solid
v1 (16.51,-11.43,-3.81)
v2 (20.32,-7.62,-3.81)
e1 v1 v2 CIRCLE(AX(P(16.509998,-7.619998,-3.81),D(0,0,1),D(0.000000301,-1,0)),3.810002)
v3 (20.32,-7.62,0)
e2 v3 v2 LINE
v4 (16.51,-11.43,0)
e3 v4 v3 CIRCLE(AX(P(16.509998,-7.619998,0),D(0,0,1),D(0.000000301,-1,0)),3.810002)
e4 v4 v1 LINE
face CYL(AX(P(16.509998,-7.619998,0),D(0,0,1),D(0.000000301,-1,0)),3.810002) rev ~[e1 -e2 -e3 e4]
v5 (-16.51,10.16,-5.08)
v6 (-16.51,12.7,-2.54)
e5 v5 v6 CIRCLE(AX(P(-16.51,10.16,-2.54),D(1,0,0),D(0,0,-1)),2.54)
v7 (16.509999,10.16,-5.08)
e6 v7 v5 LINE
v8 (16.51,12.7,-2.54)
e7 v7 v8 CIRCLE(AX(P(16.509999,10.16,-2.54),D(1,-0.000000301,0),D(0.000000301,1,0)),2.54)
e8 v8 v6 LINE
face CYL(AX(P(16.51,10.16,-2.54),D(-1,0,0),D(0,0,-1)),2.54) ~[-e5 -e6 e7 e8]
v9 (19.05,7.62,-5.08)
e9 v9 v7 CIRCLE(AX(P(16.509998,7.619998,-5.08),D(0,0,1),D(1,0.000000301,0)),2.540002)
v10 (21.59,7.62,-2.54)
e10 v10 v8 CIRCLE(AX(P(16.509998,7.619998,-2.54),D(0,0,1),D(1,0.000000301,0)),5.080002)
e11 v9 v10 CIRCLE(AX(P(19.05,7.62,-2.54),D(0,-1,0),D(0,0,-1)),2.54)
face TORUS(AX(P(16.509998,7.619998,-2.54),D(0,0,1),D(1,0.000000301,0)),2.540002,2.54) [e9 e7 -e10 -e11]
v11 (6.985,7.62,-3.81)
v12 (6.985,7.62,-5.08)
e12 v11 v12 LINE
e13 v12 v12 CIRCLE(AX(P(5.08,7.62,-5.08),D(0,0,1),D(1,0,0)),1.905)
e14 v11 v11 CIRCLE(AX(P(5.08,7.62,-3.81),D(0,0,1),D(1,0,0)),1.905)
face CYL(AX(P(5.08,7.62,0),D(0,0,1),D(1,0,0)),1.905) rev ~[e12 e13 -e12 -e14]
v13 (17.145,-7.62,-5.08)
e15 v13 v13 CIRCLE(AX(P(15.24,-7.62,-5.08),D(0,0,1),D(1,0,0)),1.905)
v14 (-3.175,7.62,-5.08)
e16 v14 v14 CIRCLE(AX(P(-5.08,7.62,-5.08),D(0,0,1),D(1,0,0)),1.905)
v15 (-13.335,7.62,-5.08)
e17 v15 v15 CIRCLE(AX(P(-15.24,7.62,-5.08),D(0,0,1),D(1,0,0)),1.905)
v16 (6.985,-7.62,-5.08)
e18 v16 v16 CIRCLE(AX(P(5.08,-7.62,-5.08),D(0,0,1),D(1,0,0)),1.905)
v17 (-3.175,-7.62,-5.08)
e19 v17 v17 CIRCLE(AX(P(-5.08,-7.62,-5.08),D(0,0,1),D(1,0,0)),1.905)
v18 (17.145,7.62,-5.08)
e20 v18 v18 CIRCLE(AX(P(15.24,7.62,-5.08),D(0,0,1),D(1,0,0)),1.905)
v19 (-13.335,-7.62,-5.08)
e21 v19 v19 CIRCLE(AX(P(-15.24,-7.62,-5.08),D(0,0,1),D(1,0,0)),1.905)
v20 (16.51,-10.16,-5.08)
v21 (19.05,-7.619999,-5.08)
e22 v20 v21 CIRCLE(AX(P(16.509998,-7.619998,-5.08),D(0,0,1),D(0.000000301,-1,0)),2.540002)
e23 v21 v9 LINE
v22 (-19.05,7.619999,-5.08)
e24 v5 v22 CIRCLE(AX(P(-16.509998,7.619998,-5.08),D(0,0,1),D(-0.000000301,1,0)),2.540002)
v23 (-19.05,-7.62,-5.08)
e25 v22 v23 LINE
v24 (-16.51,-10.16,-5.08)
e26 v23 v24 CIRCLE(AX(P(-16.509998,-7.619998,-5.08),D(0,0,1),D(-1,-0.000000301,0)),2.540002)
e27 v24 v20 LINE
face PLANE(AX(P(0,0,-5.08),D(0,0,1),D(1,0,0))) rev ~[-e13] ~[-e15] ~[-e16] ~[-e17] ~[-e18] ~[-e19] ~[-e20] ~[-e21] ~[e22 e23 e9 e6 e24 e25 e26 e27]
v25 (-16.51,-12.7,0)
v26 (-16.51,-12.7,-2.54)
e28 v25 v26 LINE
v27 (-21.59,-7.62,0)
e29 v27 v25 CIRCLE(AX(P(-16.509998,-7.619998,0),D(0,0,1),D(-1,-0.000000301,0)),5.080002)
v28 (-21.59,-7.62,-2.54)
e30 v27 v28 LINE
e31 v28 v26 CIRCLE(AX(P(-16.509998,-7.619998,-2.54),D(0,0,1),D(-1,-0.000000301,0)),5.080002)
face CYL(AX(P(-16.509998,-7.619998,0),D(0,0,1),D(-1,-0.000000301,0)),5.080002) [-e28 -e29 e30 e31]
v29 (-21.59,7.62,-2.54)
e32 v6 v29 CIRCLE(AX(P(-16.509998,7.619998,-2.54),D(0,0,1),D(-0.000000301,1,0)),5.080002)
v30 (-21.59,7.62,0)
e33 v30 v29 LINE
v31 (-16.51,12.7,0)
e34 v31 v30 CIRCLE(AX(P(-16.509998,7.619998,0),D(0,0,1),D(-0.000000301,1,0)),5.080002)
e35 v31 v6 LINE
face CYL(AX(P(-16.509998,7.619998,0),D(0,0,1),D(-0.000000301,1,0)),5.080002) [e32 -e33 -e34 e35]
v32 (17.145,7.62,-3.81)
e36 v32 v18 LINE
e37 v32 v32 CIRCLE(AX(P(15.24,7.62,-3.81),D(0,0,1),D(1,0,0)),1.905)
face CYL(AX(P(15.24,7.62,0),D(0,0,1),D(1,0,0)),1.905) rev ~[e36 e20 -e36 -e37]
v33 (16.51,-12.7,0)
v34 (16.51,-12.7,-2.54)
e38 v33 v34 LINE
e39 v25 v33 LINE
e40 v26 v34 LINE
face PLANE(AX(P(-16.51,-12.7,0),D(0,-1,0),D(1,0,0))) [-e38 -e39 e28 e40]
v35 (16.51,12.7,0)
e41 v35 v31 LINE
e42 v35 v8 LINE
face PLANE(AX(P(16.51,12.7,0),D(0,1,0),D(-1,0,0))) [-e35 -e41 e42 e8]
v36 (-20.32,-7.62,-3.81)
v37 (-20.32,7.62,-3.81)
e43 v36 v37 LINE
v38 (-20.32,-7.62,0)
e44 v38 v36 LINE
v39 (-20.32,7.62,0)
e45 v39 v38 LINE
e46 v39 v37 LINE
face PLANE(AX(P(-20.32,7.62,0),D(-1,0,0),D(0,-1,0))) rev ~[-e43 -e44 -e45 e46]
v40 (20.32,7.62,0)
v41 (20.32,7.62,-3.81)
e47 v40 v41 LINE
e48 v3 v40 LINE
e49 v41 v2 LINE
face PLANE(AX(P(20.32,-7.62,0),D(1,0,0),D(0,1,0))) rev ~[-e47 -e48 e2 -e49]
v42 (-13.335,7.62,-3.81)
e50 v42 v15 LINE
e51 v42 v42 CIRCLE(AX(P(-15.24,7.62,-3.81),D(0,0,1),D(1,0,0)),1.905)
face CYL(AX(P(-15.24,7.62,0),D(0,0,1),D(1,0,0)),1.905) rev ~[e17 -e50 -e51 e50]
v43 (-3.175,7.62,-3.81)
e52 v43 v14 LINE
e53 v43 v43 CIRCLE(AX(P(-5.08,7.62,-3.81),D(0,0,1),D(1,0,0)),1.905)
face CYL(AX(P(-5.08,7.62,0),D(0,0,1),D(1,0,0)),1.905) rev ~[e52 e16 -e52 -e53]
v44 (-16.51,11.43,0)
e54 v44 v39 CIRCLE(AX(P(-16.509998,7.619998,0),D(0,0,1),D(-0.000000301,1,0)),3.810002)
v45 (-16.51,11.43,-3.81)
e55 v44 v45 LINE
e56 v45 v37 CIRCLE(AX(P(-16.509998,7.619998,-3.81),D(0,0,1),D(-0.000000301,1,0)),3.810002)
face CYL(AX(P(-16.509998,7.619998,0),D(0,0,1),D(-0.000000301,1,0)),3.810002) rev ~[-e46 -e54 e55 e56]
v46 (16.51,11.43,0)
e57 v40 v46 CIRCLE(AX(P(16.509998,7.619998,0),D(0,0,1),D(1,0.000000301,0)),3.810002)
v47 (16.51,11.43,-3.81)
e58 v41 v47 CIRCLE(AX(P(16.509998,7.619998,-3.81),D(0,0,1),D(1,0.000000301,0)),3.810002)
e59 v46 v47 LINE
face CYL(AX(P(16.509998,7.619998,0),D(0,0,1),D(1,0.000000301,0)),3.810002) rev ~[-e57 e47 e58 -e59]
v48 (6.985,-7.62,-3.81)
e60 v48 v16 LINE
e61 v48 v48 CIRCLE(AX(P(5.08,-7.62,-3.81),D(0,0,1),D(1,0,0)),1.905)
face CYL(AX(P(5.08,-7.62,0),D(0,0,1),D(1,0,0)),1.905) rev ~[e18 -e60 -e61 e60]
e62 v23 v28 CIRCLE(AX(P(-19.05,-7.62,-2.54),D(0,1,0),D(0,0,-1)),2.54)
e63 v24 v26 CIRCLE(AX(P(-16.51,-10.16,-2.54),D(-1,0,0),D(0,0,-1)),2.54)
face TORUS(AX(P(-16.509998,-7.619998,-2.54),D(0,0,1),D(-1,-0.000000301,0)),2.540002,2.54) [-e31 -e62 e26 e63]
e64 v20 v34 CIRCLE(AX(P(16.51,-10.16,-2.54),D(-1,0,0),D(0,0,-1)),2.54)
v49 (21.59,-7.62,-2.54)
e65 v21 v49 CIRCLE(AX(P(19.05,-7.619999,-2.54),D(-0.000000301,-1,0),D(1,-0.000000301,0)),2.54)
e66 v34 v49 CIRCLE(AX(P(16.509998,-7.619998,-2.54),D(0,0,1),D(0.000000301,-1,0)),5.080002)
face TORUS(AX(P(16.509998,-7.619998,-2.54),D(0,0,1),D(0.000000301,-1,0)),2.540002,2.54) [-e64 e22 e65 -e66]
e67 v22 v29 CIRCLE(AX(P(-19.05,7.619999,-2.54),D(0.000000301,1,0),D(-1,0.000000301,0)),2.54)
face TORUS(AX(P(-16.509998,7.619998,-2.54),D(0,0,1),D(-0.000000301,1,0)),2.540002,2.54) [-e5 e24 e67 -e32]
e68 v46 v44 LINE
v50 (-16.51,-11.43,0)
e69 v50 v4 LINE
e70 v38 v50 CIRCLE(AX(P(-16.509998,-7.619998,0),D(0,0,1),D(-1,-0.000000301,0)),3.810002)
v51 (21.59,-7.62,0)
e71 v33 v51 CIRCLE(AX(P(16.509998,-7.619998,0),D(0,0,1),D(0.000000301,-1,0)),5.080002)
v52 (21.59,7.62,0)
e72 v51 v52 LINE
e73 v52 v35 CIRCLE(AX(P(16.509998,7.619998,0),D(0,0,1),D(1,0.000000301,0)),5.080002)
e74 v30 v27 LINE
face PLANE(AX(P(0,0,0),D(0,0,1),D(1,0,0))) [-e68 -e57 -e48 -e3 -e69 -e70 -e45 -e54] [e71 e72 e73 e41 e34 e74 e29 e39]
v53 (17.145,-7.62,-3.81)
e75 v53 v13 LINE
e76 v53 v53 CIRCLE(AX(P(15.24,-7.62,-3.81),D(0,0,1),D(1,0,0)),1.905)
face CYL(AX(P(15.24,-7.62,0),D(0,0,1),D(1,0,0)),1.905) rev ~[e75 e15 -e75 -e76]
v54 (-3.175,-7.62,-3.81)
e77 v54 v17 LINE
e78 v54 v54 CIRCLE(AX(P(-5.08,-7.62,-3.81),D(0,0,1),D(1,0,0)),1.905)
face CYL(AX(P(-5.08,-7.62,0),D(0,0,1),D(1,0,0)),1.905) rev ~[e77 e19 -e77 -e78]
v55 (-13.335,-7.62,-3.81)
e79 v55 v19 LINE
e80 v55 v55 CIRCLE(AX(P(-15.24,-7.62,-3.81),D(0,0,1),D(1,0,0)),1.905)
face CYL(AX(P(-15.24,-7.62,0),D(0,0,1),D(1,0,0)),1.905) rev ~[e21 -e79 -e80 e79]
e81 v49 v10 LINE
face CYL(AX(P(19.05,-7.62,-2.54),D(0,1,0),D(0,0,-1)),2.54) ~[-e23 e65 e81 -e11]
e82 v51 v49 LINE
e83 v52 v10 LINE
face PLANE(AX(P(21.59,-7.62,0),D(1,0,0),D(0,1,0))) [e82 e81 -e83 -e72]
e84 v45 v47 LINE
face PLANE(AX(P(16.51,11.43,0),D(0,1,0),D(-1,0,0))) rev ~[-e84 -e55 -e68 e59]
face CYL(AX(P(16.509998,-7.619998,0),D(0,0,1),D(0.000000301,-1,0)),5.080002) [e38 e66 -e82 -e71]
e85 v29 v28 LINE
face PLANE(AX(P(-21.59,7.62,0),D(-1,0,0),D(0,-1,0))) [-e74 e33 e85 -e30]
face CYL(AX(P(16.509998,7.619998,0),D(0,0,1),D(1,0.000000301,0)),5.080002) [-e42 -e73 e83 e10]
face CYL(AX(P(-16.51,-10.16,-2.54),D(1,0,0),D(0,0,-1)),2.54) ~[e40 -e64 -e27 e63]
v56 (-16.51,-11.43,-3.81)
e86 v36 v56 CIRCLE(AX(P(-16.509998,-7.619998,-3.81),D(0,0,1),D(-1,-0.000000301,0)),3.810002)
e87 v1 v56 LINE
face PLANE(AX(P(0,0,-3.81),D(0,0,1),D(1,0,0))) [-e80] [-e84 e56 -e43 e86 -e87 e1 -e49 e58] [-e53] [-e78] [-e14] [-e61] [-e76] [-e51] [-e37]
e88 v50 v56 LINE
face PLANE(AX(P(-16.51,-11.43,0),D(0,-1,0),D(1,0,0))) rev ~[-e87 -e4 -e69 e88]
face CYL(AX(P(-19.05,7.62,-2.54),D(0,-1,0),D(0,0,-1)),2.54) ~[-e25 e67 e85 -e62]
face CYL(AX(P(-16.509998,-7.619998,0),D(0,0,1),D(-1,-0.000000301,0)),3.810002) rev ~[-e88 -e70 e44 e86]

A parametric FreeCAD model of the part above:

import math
import FreeCAD as App
import Part
import Sketcher
Q = App.Units.Quantity


def edges_at(feature, points):
    """Names of the edges that pass closest to the given points."""
    edges = feature.Shape.Edges
    near = lambda p: min(range(len(edges)), key=lambda i: edges[i].distToShape(Part.Vertex(*p))[0])
    return sorted({f"Edge{near(p) + 1}" for p in points})


def faces_at(feature, points):
    """Names of the faces that lie closest to the given points."""
    faces = feature.Shape.Faces
    near = lambda p: min(range(len(faces)), key=lambda i: faces[i].distToShape(Part.Vertex(*p))[0])
    return sorted({f"Face{near(p) + 1}" for p in points})

doc = App.newDocument("Part")
body = doc.addObject("PartDesign::Body", "Body")

sketch1 = body.newObject("Sketcher::SketchObject", "Sketch")
sketch1.AttachmentSupport = (doc.getObject("XY_Plane"), [""])
sketch1.MapMode = "FlatFace"
sketch1.addGeometry([
    Part.ArcOfCircle(Part.Circle(App.Vector(17, 8, 0), App.Vector(0, 0, 1), 5), math.radians(0), math.radians(90)),
    Part.LineSegment(App.Vector(17, 13, 0), App.Vector(-17, 13, 0)),
    Part.ArcOfCircle(Part.Circle(App.Vector(-17, 8, 0), App.Vector(0, 0, 1), 5), math.radians(90), math.radians(180)),
    Part.LineSegment(App.Vector(-22, 8, 0), App.Vector(-22, -8, 0)),
    Part.ArcOfCircle(Part.Circle(App.Vector(-17, -8, 0), App.Vector(0, 0, 1), 5), math.radians(-180), math.radians(-90)),
    Part.LineSegment(App.Vector(-17, -13, 0), App.Vector(17, -13, 0)),
    Part.ArcOfCircle(Part.Circle(App.Vector(17, -8, 0), App.Vector(0, 0, 1), 5), math.radians(-90), math.radians(0)),
    Part.LineSegment(App.Vector(22, -8, 0), App.Vector(22, 8, 0)),
], False)
sketch1.addConstraint([
    Sketcher.Constraint("Tangent", 0, 2, 1, 1),
    Sketcher.Constraint("Tangent", 1, 2, 2, 1),
    Sketcher.Constraint("Tangent", 2, 2, 3, 1),
    Sketcher.Constraint("Tangent", 3, 2, 4, 1),
    Sketcher.Constraint("Tangent", 4, 2, 5, 1),
    Sketcher.Constraint("Tangent", 5, 2, 6, 1),
    Sketcher.Constraint("Tangent", 6, 2, 7, 1),
    Sketcher.Constraint("Tangent", 7, 2, 0, 1),
    Sketcher.Constraint("Horizontal", 1),
    Sketcher.Constraint("Vertical", 3),
    Sketcher.Constraint("Horizontal", 5),
    Sketcher.Constraint("Vertical", 7),
    Sketcher.Constraint("Equal", 0, 2),
    Sketcher.Constraint("Equal", 2, 4),
    Sketcher.Constraint("Equal", 4, 6),
    Sketcher.Constraint("Symmetric", 0, 3, 4, 3, -1, 1),
    Sketcher.Constraint("Radius", 0, Q("0.2000001 in")),
    Sketcher.Constraint("DistanceX", 1, 2, 1, 1, Q("1.3 in")),
    Sketcher.Constraint("DistanceY", 3, 2, 3, 1, Q("0.6 in")),
])
pad1 = body.newObject("PartDesign::Pad", "Pad")
pad1.Profile = sketch1
pad1.Length = Q("0.2 in")
pad1.Reversed = True
doc.recompute()

thickness = body.newObject("PartDesign::Thickness", "Thickness")
thickness.Base = (pad1, faces_at(pad1, [(0, 0, 0)]))
thickness.Value = Q("0.05 in")
thickness.Reversed = True
thickness.Join = "Arc"

sketch2 = body.newObject("Sketcher::SketchObject", "Sketch001")
sketch2.AttachmentSupport = (doc.getObject("XY_Plane"), [""])
sketch2.MapMode = "FlatFace"
sketch2.AttachmentOffset = App.Placement(App.Vector(0, 0, -0.3 * 25.4), App.Rotation())
sketch2.addGeometry([
    Part.Circle(App.Vector(15.2, -7.6, 0), App.Vector(0, 0, 1), 1.5),
    Part.Circle(App.Vector(15.2, 7.6, 0), App.Vector(0, 0, 1), 1.5),
    Part.Circle(App.Vector(5.1, -7.6, 0), App.Vector(0, 0, 1), 1.5),
    Part.Circle(App.Vector(-5.1, -7.6, 0), App.Vector(0, 0, 1), 1.5),
    Part.Circle(App.Vector(-15.2, -7.6, 0), App.Vector(0, 0, 1), 1.5),
    Part.Circle(App.Vector(5.1, 7.6, 0), App.Vector(0, 0, 1), 1.5),
    Part.Circle(App.Vector(-5.1, 7.6, 0), App.Vector(0, 0, 1), 1.5),
    Part.Circle(App.Vector(-15.2, 7.6, 0), App.Vector(0, 0, 1), 1.5),
], False)
sketch2.addConstraint([
    Sketcher.Constraint("Equal", 0, 1),
    Sketcher.Constraint("Equal", 1, 2),
    Sketcher.Constraint("Equal", 2, 3),
    Sketcher.Constraint("Equal", 3, 4),
    Sketcher.Constraint("Equal", 4, 5),
    Sketcher.Constraint("Equal", 5, 6),
    Sketcher.Constraint("Equal", 6, 7),
    Sketcher.Constraint("Symmetric", 1, 3, 4, 3, -1, 1),
    Sketcher.Constraint("Symmetric", 3, 3, 5, 3, -1, 1),
    Sketcher.Constraint("Symmetric", 2, 3, 6, 3, -1, 1),
    Sketcher.Constraint("Symmetric", 0, 3, 7, 3, -1, 1),
    Sketcher.Constraint("Symmetric", 2, 3, 3, 3, -2),
    Sketcher.Constraint("Symmetric", 0, 3, 4, 3, -2),
    Sketcher.Constraint("Horizontal", 0, 3, 2, 3),
    Sketcher.Constraint("Diameter", 0, Q("0.12 in")),
    Sketcher.Constraint("DistanceX", -1, 1, 0, 3, Q("0.6 in")),
    Sketcher.Constraint("DistanceY", 0, 3, -1, 1, Q("0.3 in")),
    Sketcher.Constraint("DistanceX", -1, 1, 2, 3, Q("0.2 in")),
])
pocket1 = body.newObject("PartDesign::Pocket", "Pocket")
pocket1.Profile = sketch2
pocket1.Length = Q("1 in")

sketch3 = body.newObject("Sketcher::SketchObject", "Sketch002")
sketch3.AttachmentSupport = (doc.getObject("XY_Plane"), [""])
sketch3.MapMode = "FlatFace"
sketch3.addGeometry([
    Part.Circle(App.Vector(15.2, -7.6, 0), App.Vector(0, 0, 1), 1.9),
    Part.Circle(App.Vector(5.1, -7.6, 0), App.Vector(0, 0, 1), 1.9),
    Part.Circle(App.Vector(-5.1, -7.6, 0), App.Vector(0, 0, 1), 1.9),
    Part.Circle(App.Vector(-15.2, -7.6, 0), App.Vector(0, 0, 1), 1.9),
    Part.Circle(App.Vector(15.2, 7.6, 0), App.Vector(0, 0, 1), 1.9),
    Part.Circle(App.Vector(5.1, 7.6, 0), App.Vector(0, 0, 1), 1.9),
    Part.Circle(App.Vector(-5.1, 7.6, 0), App.Vector(0, 0, 1), 1.9),
    Part.Circle(App.Vector(-15.2, 7.6, 0), App.Vector(0, 0, 1), 1.9),
], False)
sketch3.addConstraint([
    Sketcher.Constraint("Equal", 0, 1),
    Sketcher.Constraint("Equal", 1, 2),
    Sketcher.Constraint("Equal", 2, 3),
    Sketcher.Constraint("Equal", 3, 4),
    Sketcher.Constraint("Equal", 4, 5),
    Sketcher.Constraint("Equal", 5, 6),
    Sketcher.Constraint("Equal", 6, 7),
    Sketcher.Constraint("Symmetric", 3, 3, 4, 3, -1, 1),
    Sketcher.Constraint("Symmetric", 2, 3, 5, 3, -1, 1),
    Sketcher.Constraint("Symmetric", 1, 3, 6, 3, -1, 1),
    Sketcher.Constraint("Symmetric", 0, 3, 7, 3, -1, 1),
    Sketcher.Constraint("Symmetric", 1, 3, 2, 3, -2),
    Sketcher.Constraint("Symmetric", 0, 3, 3, 3, -2),
    Sketcher.Constraint("Horizontal", 0, 3, 1, 3),
    Sketcher.Constraint("Diameter", 0, Q("0.15 in")),
    Sketcher.Constraint("DistanceX", -1, 1, 0, 3, Q("0.6 in")),
    Sketcher.Constraint("DistanceY", 0, 3, -1, 1, Q("0.3 in")),
    Sketcher.Constraint("DistanceX", -1, 1, 1, 3, Q("0.2 in")),
])
pocket2 = body.newObject("PartDesign::Pocket", "Pocket001")
pocket2.Profile = sketch3
pocket2.Length = Q("0.39 in")
doc.recompute()

fillet = body.newObject("PartDesign::Fillet", "Fillet")
fillet.Base = (pocket2, edges_at(pocket2, [(0, -12.7, -5.08)]))
fillet.Radius = Q("0.1 in")

doc.recompute()
